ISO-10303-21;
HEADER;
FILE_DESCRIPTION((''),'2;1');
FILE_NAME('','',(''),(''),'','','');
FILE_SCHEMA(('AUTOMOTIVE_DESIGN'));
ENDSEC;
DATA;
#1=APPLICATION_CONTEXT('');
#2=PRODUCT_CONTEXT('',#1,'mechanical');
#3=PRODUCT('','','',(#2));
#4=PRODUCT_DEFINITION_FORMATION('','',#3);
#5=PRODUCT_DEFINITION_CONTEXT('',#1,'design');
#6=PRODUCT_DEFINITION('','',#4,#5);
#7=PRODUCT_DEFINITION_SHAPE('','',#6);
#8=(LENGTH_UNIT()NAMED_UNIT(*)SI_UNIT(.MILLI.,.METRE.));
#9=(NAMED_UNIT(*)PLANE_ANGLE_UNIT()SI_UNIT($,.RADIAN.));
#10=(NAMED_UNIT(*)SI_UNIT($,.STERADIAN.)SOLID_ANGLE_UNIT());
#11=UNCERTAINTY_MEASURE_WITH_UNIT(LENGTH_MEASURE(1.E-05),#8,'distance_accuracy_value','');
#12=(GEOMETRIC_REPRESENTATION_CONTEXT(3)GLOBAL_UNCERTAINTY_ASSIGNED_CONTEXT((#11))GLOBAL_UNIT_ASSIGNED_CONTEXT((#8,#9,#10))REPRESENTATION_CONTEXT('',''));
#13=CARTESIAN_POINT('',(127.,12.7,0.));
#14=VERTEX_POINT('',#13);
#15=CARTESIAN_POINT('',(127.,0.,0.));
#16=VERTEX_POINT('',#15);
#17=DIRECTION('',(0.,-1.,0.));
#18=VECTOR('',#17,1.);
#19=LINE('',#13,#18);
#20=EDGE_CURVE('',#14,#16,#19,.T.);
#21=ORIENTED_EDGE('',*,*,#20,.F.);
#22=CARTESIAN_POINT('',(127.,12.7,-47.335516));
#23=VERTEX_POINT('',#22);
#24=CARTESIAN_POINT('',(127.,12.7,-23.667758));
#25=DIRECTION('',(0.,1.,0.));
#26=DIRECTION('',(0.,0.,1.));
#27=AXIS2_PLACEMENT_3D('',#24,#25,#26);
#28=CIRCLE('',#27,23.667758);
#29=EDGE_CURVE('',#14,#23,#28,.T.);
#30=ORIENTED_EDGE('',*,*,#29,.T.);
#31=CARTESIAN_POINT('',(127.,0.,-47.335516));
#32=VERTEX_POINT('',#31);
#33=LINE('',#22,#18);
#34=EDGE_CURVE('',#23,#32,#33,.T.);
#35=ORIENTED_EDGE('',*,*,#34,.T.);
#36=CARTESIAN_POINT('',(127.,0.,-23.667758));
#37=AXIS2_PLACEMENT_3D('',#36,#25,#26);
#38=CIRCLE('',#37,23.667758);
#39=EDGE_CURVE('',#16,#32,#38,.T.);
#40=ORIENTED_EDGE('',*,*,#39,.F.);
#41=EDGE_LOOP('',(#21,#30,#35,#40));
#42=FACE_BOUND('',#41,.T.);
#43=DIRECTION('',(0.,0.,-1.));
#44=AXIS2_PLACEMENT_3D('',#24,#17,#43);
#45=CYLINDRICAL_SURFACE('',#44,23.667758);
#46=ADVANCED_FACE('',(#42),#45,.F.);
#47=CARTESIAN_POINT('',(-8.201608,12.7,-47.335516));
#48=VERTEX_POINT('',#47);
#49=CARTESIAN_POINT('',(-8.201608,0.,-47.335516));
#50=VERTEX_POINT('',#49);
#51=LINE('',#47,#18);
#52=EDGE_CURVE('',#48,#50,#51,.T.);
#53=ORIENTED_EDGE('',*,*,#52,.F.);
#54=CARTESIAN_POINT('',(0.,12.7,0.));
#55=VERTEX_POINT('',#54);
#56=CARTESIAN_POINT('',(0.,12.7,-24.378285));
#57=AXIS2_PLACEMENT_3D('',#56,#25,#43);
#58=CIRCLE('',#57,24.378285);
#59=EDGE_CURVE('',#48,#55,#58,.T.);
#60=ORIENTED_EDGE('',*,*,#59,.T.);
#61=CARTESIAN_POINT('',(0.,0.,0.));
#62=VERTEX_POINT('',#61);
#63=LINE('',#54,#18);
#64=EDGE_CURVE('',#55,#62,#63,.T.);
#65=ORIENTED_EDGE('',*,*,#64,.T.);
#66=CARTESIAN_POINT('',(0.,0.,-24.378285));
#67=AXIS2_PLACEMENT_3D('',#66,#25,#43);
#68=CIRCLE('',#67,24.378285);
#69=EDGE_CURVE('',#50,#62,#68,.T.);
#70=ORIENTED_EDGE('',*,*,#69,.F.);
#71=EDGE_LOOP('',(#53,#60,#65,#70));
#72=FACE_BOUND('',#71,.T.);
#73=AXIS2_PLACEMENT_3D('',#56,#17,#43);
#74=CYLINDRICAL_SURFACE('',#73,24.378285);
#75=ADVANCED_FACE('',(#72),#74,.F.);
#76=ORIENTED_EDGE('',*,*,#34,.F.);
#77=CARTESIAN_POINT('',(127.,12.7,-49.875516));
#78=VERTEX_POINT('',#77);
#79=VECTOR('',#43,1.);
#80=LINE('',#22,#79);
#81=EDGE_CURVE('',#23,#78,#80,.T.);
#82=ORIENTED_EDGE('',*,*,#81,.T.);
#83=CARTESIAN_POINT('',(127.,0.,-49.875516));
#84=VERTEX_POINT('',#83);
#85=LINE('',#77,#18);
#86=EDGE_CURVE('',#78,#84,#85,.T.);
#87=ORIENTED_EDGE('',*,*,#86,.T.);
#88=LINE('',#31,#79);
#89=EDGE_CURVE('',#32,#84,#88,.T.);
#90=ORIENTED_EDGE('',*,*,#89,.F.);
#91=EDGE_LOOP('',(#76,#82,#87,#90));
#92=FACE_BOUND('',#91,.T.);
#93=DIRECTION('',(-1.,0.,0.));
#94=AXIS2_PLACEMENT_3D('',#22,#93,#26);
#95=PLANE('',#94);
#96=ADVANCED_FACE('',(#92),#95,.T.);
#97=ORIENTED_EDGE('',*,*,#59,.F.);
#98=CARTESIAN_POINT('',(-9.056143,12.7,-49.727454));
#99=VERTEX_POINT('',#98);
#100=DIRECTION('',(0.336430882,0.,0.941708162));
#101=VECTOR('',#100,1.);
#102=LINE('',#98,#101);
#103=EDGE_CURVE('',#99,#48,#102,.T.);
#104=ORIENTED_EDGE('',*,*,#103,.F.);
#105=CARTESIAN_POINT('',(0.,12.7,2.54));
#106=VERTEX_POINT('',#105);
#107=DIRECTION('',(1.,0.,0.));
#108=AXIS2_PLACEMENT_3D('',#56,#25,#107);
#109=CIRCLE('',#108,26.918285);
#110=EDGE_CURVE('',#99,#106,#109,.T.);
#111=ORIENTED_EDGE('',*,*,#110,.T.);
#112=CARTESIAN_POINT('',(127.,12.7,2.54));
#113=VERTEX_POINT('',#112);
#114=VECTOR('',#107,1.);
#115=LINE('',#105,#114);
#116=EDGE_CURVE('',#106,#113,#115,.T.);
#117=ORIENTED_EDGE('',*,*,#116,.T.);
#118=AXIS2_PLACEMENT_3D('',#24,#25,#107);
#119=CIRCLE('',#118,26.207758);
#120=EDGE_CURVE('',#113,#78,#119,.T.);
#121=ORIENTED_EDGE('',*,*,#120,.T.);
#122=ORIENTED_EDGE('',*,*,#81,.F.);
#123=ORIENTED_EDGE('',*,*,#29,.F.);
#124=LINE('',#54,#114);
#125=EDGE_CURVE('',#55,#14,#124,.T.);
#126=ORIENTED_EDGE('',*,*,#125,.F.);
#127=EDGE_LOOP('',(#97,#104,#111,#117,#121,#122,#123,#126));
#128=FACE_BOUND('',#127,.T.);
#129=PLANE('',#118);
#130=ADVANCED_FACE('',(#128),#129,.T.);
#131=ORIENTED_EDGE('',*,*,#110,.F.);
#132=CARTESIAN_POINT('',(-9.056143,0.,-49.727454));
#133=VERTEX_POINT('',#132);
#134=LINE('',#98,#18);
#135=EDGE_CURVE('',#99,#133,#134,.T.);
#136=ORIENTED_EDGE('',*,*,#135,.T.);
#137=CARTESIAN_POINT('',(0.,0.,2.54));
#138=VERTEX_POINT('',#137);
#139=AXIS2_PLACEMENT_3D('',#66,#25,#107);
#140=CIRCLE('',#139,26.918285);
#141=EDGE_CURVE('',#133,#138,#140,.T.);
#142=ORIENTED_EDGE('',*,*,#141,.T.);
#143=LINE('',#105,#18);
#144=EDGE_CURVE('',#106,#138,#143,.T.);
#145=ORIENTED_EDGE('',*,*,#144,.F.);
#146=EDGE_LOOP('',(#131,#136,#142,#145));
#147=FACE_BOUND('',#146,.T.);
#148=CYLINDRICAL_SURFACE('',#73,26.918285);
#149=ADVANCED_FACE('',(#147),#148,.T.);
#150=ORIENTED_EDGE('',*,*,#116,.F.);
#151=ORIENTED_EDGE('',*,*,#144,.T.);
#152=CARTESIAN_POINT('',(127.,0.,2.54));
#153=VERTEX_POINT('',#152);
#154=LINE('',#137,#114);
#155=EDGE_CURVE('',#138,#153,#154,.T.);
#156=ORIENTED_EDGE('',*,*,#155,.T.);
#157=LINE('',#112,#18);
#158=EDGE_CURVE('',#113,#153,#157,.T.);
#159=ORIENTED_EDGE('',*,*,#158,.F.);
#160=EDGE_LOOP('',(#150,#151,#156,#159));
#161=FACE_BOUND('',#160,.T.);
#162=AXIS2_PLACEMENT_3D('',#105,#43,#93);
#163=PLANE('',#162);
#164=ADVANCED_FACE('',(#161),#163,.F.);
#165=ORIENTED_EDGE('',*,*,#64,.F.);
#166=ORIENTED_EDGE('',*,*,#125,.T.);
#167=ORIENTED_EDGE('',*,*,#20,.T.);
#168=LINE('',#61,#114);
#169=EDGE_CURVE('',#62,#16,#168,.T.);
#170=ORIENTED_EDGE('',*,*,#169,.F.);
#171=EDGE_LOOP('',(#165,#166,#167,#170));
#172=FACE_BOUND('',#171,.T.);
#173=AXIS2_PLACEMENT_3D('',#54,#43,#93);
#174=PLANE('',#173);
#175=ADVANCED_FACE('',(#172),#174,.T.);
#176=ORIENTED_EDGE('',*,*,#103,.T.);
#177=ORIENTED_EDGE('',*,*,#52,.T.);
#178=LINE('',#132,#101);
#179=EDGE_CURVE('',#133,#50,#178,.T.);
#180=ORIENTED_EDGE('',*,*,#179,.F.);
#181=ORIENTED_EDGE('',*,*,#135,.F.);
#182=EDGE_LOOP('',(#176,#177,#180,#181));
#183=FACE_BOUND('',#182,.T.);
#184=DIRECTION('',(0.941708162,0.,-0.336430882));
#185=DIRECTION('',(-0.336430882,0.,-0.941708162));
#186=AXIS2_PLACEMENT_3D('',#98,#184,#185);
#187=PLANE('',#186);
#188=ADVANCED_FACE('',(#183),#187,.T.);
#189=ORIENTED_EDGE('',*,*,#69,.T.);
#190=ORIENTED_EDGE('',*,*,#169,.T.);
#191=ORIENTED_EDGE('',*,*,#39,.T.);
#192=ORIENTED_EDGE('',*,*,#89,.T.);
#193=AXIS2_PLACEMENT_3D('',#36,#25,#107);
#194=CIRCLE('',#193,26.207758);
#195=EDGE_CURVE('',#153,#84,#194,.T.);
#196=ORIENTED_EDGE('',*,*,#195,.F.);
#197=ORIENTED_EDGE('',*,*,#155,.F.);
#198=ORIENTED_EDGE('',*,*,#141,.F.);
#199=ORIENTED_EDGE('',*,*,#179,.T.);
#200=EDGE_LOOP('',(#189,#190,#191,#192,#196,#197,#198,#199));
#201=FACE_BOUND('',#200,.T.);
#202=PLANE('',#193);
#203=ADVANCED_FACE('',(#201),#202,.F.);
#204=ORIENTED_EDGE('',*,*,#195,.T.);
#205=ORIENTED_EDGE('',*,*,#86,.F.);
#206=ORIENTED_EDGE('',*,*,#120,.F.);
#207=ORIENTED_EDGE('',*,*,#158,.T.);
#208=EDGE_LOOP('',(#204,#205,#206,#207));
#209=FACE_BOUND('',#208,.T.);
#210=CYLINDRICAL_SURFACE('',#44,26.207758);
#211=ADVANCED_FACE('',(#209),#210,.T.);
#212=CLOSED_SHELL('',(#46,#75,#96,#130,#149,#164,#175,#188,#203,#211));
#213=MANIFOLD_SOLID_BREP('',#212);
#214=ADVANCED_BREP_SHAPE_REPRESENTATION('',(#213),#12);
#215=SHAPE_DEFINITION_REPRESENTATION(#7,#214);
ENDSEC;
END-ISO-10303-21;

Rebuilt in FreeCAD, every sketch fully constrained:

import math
import FreeCAD as App
import Part
import Sketcher

V = App.Vector
Q = App.Units.Quantity

doc = App.newDocument("Part")
body = doc.addObject("PartDesign::Body", "Body")

# Sketch on XZ plane
sketch1 = doc.addObject("Sketcher::SketchObject", "Sketch")
body.addObject(sketch1)
sketch1.AttachmentSupport = (doc.XZ_Plane, [""])
sketch1.MapMode = "FlatFace"
sketch1.addGeometry(Part.ArcOfCircle(Part.Circle(V(0, -24.4, 0), V(0, 0, 1), 24.4), math.radians(90), math.radians(250)), False)
sketch1.addGeometry(Part.LineSegment(V(-8.2, -47.3, 0), V(-9.1, -49.7, 0)), False)
sketch1.addGeometry(Part.ArcOfCircle(Part.Circle(V(0, -24.4, 0), V(0, 0, 1), 26.9), math.radians(90), math.radians(250)), False)
sketch1.addGeometry(Part.LineSegment(V(0, 2.5, 0), V(127, 2.5, 0)), False)
sketch1.addGeometry(Part.ArcOfCircle(Part.Circle(V(127, -23.7, 0), V(0, 0, 1), 26.2), math.radians(-90), math.radians(90)), False)
sketch1.addGeometry(Part.LineSegment(V(127, -49.9, 0), V(127, -47.3, 0)), False)
sketch1.addGeometry(Part.ArcOfCircle(Part.Circle(V(127, -23.7, 0), V(0, 0, 1), 23.7), math.radians(-90), math.radians(90)), False)
sketch1.addGeometry(Part.LineSegment(V(127, 0, 0), V(0, 0, 0)), False)
sketch1.addConstraint(Sketcher.Constraint("Coincident", 0, 2, 1, 1))
sketch1.addConstraint(Sketcher.Constraint("Coincident", 1, 2, 2, 2))
sketch1.addConstraint(Sketcher.Constraint("Tangent", 2, 1, 3, 1))
sketch1.addConstraint(Sketcher.Constraint("Tangent", 3, 2, 4, 2))
sketch1.addConstraint(Sketcher.Constraint("Coincident", 4, 1, 5, 1))
sketch1.addConstraint(Sketcher.Constraint("Coincident", 5, 2, 6, 1))
sketch1.addConstraint(Sketcher.Constraint("Tangent", 6, 2, 7, 1))
sketch1.addConstraint(Sketcher.Constraint("Tangent", 7, 2, 0, 1))
sketch1.addConstraint(Sketcher.Constraint("Horizontal", 3))
sketch1.addConstraint(Sketcher.Constraint("Vertical", 5))
sketch1.addConstraint(Sketcher.Constraint("Horizontal", 7))
sketch1.addConstraint(Sketcher.Constraint("Coincident", 7, 2, -1, 1))
sketch1.addConstraint(Sketcher.Constraint("Coincident", 2, 3, 0, 3))
sketch1.addConstraint(Sketcher.Constraint("Coincident", 6, 3, 4, 3))
sketch1.addConstraint(Sketcher.Constraint("Horizontal", 0, 2, 5, 2))
sketch1.addConstraint(Sketcher.Constraint("Vertical", 3, 2, 4, 1))
sketch1.addConstraint(Sketcher.Constraint("DistanceX", 3, 1, 3, 2, Q("5 in")))
sketch1.addConstraint(Sketcher.Constraint("DistanceY", 5, 1, 5, 2, Q("0.1 in")))
sketch1.addConstraint(Sketcher.Constraint("Radius", 0, Q("24.378285 mm")))
sketch1.addConstraint(Sketcher.Constraint("Radius", 4, Q("26.207758 mm")))
sketch1.addConstraint(Sketcher.Constraint("DistanceY", 1, 2, 0, 2, Q("2.391939 mm")))
pad1 = doc.addObject("PartDesign::Pad", "Pad")
body.addObject(pad1)
pad1.Profile = sketch1
pad1.Length = Q("0.5 in")
pad1.Reversed = True

doc.recompute()
